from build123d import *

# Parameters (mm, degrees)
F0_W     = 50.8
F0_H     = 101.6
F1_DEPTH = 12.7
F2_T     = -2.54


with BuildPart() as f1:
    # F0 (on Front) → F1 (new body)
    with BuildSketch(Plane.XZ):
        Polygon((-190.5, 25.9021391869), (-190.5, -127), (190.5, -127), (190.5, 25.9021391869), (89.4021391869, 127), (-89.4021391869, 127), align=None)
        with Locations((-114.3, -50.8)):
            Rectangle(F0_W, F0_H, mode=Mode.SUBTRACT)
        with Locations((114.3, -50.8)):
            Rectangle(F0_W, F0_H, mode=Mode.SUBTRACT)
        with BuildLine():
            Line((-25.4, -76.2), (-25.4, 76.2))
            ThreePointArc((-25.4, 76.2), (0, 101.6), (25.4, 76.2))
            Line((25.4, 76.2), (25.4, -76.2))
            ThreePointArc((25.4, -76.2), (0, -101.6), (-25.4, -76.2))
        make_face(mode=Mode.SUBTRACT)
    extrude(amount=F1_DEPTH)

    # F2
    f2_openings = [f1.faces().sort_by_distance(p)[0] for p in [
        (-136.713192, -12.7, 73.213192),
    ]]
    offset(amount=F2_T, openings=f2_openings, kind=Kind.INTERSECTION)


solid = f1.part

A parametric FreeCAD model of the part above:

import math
import FreeCAD as App
import Part
import Sketcher
Q = App.Units.Quantity


def faces_at(feature, points):
    """Names of the faces that lie closest to the given points."""
    faces = feature.Shape.Faces
    near = lambda p: min(range(len(faces)), key=lambda i: faces[i].distToShape(Part.Vertex(*p))[0])
    return sorted({f"Face{near(p) + 1}" for p in points})


def add_polygon(sketch, points):
    """Adds a closed chain of lines whose ends are joined by coincident constraints."""
    first, n = sketch.GeometryCount, len(points)
    for a, b in zip(points, points[1:] + points[:1]):
        sketch.addGeometry(Part.LineSegment(App.Vector(*a, 0), App.Vector(*b, 0)), False)
    for i in range(n):
        sketch.addConstraint(Sketcher.Constraint("Coincident", first + i, 2, first + (i + 1) % n, 1))

doc = App.newDocument("Part")
params = doc.addObject("Spreadsheet::Sheet", "Params")
for row, (alias, value) in enumerate([
    ("sketch1_radius", "1 in"),
    ("sketch1_width", "15 in"),
    ("sketch1_width2", "2 in"),
    ("sketch1_height", "4 in"),
    ("sketch1_height2", "6 in"),
    ("pad1_length", "0.5 in"),
    ("thickness_wall", "0.1 in"),
], start=1):
    params.set(f"A{row}", alias)
    params.set(f"B{row}", "=" + value)
    params.setAlias(f"B{row}", alias)

body = doc.addObject("PartDesign::Body", "Body")

sketch1 = doc.addObject("Sketcher::SketchObject", "Sketch")
body.addObject(sketch1)
sketch1.AttachmentSupport = (doc.XZ_Plane, [""])
sketch1.MapMode = "FlatFace"
add_polygon(sketch1, [(-190, 26), (-190, -127), (190, -127), (190, 26), (89, 127), (-89, 127)])
add_polygon(sketch1, [(-89, -102), (-140, -102), (-140, 0), (-89, 0)])
add_polygon(sketch1, [(140, -102), (89, -102), (89, 0), (140, 0)])
sketch1.addGeometry(Part.ArcOfCircle(Part.Circle(App.Vector(0, -76, 0), App.Vector(0, 0, 1), 25), math.radians(180), math.radians(360)), False)
sketch1.addGeometry(Part.LineSegment(App.Vector(-25, -76, 0), App.Vector(-25, 76, 0)), False)
sketch1.addGeometry(Part.ArcOfCircle(Part.Circle(App.Vector(0, 76, 0), App.Vector(0, 0, 1), 25), math.radians(0), math.radians(180)), False)
sketch1.addGeometry(Part.LineSegment(App.Vector(25, 76, 0), App.Vector(25, -76, 0)), False)
sketch1.addConstraint(Sketcher.Constraint("Tangent", 14, 1, 15, 1))
sketch1.addConstraint(Sketcher.Constraint("Tangent", 15, 2, 16, 2))
sketch1.addConstraint(Sketcher.Constraint("Tangent", 16, 1, 17, 1))
sketch1.addConstraint(Sketcher.Constraint("Tangent", 17, 2, 14, 2))
sketch1.addConstraint(Sketcher.Constraint("Vertical", 0))
sketch1.addConstraint(Sketcher.Constraint("Horizontal", 1))
sketch1.addConstraint(Sketcher.Constraint("Vertical", 2))
sketch1.addConstraint(Sketcher.Constraint("Horizontal", 4))
sketch1.addConstraint(Sketcher.Constraint("Horizontal", 6))
sketch1.addConstraint(Sketcher.Constraint("Vertical", 7))
sketch1.addConstraint(Sketcher.Constraint("Horizontal", 8))
sketch1.addConstraint(Sketcher.Constraint("Vertical", 9))
sketch1.addConstraint(Sketcher.Constraint("Horizontal", 10))
sketch1.addConstraint(Sketcher.Constraint("Vertical", 11))
sketch1.addConstraint(Sketcher.Constraint("Horizontal", 12))
sketch1.addConstraint(Sketcher.Constraint("Vertical", 13))
sketch1.addConstraint(Sketcher.Constraint("Vertical", 15))
sketch1.addConstraint(Sketcher.Constraint("Vertical", 17))
sketch1.addConstraint(Sketcher.Constraint("Symmetric", 14, 3, 16, 3, -1, 1))
sketch1.addConstraint(Sketcher.Constraint("Symmetric", 8, 2, 11, 2, -1, 1))
sketch1.addConstraint(Sketcher.Constraint("Symmetric", 2, 2, 5, 2, -2))
sketch1.addConstraint(Sketcher.Constraint("Symmetric", 7, 2, 12, 2, -2))
sketch1.addConstraint(Sketcher.Constraint("Perpendicular", 3, 5))
sketch1.addConstraint(Sketcher.Constraint("Horizontal", 9, 2, 10, 2))
sketch1.addConstraint(Sketcher.Constraint("Equal", 3, 5))
sketch1.addConstraint(Sketcher.Constraint("Radius", 14, Q("1 in")))
sketch1.addConstraint(Sketcher.Constraint("DistanceX", 1, 1, 1, 2, Q("15 in")))
sketch1.addConstraint(Sketcher.Constraint("DistanceX", 6, 2, 6, 1, Q("2 in")))
sketch1.addConstraint(Sketcher.Constraint("DistanceY", 7, 1, 7, 2, Q("4 in")))
sketch1.addConstraint(Sketcher.Constraint("DistanceY", 15, 1, 15, 2, Q("6 in")))
sketch1.addConstraint(Sketcher.Constraint("DistanceY", 0, 2, -1, 1, Q("5 in")))
sketch1.addConstraint(Sketcher.Constraint("DistanceY", -1, 1, 3, 2, Q("5 in")))
sketch1.addConstraint(Sketcher.Constraint("DistanceX", 0, 2, 6, 2, Q("2 in")))
sketch1.addConstraint(Sketcher.Constraint("DistanceX", 4, 2, 4, 1, Q("178.804278 mm")))
sketch1.setExpression("Constraints[39]", "Params.sketch1_radius")
sketch1.setExpression("Constraints[40]", "Params.sketch1_width")
sketch1.setExpression("Constraints[41]", "Params.sketch1_width2")
sketch1.setExpression("Constraints[42]", "Params.sketch1_height")
sketch1.setExpression("Constraints[43]", "Params.sketch1_height2")
pad1 = doc.addObject("PartDesign::Pad", "Pad")
body.addObject(pad1)
pad1.Profile = sketch1
pad1.setExpression("Length", "Params.pad1_length")
doc.recompute()

thickness = doc.addObject("PartDesign::Thickness", "Thickness")
body.addObject(thickness)
thickness.Base = (pad1, faces_at(pad1, [(-76.2, -12.7, -50.8)]))
thickness.setExpression("Value", "Params.thickness_wall")
thickness.Reversed = True
thickness.Join = "Intersection"

doc.recompute()
